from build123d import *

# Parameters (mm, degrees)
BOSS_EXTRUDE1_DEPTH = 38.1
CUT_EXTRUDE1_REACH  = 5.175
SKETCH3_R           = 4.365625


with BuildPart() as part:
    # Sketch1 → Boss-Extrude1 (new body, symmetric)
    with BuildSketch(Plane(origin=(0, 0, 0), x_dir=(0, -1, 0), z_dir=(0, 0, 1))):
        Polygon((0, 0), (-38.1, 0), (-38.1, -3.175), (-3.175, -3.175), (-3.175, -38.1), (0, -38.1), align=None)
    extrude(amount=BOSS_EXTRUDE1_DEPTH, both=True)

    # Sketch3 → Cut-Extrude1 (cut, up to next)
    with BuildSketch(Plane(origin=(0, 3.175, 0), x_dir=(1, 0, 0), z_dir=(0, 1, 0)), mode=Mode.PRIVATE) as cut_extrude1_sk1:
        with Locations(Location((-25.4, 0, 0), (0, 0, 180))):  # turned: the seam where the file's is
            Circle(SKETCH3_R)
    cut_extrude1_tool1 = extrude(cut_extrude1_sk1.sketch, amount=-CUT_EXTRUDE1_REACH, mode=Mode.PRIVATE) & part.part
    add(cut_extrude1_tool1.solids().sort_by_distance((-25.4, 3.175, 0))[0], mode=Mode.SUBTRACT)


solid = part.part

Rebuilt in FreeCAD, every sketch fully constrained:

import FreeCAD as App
import Part
import Sketcher
from FreeCAD import Vector
Q = App.Units.Quantity

doc = App.newDocument("Part")
body = doc.addObject("PartDesign::Body", "Body")

sketch1 = body.newObject("Sketcher::SketchObject", "Sketch")
sketch1.AttachmentSupport = (doc.getObject("XY_Plane"), [""])
sketch1.MapMode = "FlatFace"
sketch1.addGeometry([
    Part.LineSegment(Vector(0, 0, 0), Vector(0, 38.1, 0)),
    Part.LineSegment(Vector(0, 38.1, 0), Vector(-3.2, 38.1, 0)),
    Part.LineSegment(Vector(-3.2, 38.1, 0), Vector(-3.2, 3.2, 0)),
    Part.LineSegment(Vector(-3.2, 3.2, 0), Vector(-38.1, 3.2, 0)),
    Part.LineSegment(Vector(-38.1, 3.2, 0), Vector(-38.1, 0, 0)),
    Part.LineSegment(Vector(-38.1, 0, 0), Vector(0, 0, 0)),
], False)
sketch1.addConstraint([
    Sketcher.Constraint("Coincident", 0, 2, 1, 1),
    Sketcher.Constraint("Coincident", 1, 2, 2, 1),
    Sketcher.Constraint("Coincident", 2, 2, 3, 1),
    Sketcher.Constraint("Coincident", 3, 2, 4, 1),
    Sketcher.Constraint("Coincident", 4, 2, 5, 1),
    Sketcher.Constraint("Coincident", 5, 2, 0, 1),
    Sketcher.Constraint("Vertical", 0),
    Sketcher.Constraint("Horizontal", 1),
    Sketcher.Constraint("Vertical", 2),
    Sketcher.Constraint("Horizontal", 3),
    Sketcher.Constraint("Vertical", 4),
    Sketcher.Constraint("Horizontal", 5),
    Sketcher.Constraint("Coincident", 5, 2, -1, 1),
    Sketcher.Constraint("Equal", 5, 0),
    Sketcher.Constraint("Equal", 3, 2),
    Sketcher.Constraint("DistanceX", 5, 1, 5, 2, Q("1.5 in")),
    Sketcher.Constraint("DistanceX", 1, 2, 1, 1, Q("0.125 in")),
])
pad1 = body.newObject("PartDesign::Pad", "Pad")
pad1.Profile = sketch1
pad1.Length = Q("3 in")
pad1.Midplane = True

sketch2 = body.newObject("Sketcher::SketchObject", "Sketch001")
sketch2.AttachmentSupport = (doc.getObject("XZ_Plane"), [""])
sketch2.MapMode = "FlatFace"
sketch2.AttachmentOffset = App.Placement(Vector(0, 0, -0.125 * 25.4), App.Rotation())
sketch2.addGeometry(Part.Circle(Vector(-25.4, 0, 0), Vector(0, 0, 1), 4.4), False)
sketch2.addConstraint([
    Sketcher.Constraint("PointOnObject", 0, 3, -1),
    Sketcher.Constraint("Diameter", 0, Q("0.34375 in")),
    Sketcher.Constraint("DistanceX", 0, 3, -1, 1, Q("1 in")),
])
pocket1 = body.newObject("PartDesign::Pocket", "Pocket")
pocket1.Profile = sketch2
pocket1.Type = "UpToFirst"
pocket1.Reversed = True

doc.recompute()
